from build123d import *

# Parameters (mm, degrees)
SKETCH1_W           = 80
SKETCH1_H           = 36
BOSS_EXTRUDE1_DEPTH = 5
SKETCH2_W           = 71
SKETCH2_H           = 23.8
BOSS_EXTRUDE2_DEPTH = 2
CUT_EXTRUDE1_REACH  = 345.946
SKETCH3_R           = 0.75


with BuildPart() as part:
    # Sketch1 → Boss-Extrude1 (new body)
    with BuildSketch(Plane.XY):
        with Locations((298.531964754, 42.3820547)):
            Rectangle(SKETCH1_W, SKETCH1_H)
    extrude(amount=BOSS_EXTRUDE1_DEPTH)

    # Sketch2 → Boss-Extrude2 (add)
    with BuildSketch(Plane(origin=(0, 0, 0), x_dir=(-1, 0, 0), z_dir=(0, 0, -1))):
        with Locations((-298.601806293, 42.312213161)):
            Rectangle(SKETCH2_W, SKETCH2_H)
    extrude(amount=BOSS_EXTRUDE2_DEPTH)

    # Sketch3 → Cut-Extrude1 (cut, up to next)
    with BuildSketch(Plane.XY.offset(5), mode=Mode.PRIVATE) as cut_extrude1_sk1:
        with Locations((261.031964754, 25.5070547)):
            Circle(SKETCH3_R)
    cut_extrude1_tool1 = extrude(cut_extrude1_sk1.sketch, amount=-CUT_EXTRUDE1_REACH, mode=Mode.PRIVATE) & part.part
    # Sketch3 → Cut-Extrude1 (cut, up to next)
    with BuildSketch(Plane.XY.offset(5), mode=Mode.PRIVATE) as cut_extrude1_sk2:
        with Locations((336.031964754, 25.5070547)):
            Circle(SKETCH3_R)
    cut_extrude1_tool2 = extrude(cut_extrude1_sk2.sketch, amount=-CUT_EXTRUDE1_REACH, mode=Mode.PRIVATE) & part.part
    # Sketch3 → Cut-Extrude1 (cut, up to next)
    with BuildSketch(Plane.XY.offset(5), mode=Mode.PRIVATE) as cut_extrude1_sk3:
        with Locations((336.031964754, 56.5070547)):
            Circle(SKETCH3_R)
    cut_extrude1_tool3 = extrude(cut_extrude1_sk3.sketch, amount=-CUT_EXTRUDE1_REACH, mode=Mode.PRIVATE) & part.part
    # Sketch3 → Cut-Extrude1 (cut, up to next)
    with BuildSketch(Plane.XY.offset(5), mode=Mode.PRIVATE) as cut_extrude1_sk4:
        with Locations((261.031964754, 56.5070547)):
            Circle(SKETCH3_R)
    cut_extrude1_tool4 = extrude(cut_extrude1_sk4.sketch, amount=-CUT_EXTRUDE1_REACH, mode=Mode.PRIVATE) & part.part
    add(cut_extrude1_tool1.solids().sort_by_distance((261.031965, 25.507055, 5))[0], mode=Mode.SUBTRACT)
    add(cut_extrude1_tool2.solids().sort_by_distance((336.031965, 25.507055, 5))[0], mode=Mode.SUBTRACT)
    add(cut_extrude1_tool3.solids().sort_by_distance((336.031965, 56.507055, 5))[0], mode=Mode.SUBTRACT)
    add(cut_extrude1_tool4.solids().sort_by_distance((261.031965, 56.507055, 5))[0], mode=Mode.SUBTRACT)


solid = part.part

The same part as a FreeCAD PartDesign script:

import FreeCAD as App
import Part
import Sketcher
from FreeCAD import Vector
Q = App.Units.Quantity

doc = App.newDocument("Part")
body = doc.addObject("PartDesign::Body", "Body")

# Sketch on XY plane
sketch1 = doc.addObject("Sketcher::SketchObject", "Sketch")
body.addObject(sketch1)
sketch1.AttachmentSupport = (doc.XY_Plane, [""])
sketch1.MapMode = "FlatFace"
sketch1.addGeometry([
    Part.LineSegment(Vector(258.531965, 60.382055, 0), Vector(258.531965, 24.382055, 0)),
    Part.LineSegment(Vector(258.531965, 24.382055, 0), Vector(338.531965, 24.382055, 0)),
    Part.LineSegment(Vector(338.531965, 24.382055, 0), Vector(338.531965, 60.382055, 0)),
    Part.LineSegment(Vector(338.531965, 60.382055, 0), Vector(258.531965, 60.382055, 0)),
], False)
sketch1.addConstraint([
    Sketcher.Constraint("Coincident", 0, 2, 1, 1),
    Sketcher.Constraint("Coincident", 1, 2, 2, 1),
    Sketcher.Constraint("Coincident", 2, 2, 3, 1),
    Sketcher.Constraint("Coincident", 3, 2, 0, 1),
    Sketcher.Constraint("Vertical", 0),
    Sketcher.Constraint("Horizontal", 1),
    Sketcher.Constraint("Vertical", 2),
    Sketcher.Constraint("Horizontal", 3),
    Sketcher.Constraint("DistanceX", 1, 1, 1, 2, Q("80 mm")),
    Sketcher.Constraint("DistanceY", 0, 2, 0, 1, Q("36 mm")),
    Sketcher.Constraint("DistanceX", -1, 1, 0, 2, Q("258.531965 mm")),
    Sketcher.Constraint("DistanceY", -1, 1, 0, 2, Q("24.382055 mm")),
])
pad1 = doc.addObject("PartDesign::Pad", "Pad")
body.addObject(pad1)
pad1.Profile = sketch1
pad1.Length = 5

# Sketch on XY plane
sketch2 = doc.addObject("Sketcher::SketchObject", "Sketch001")
body.addObject(sketch2)
sketch2.AttachmentSupport = (doc.XY_Plane, [""])
sketch2.MapMode = "FlatFace"
sketch2.addGeometry([
    Part.LineSegment(Vector(334.101806, 54.212213, 0), Vector(334.101806, 30.412213, 0)),
    Part.LineSegment(Vector(334.101806, 30.412213, 0), Vector(263.101806, 30.412213, 0)),
    Part.LineSegment(Vector(263.101806, 30.412213, 0), Vector(263.101806, 54.212213, 0)),
    Part.LineSegment(Vector(263.101806, 54.212213, 0), Vector(334.101806, 54.212213, 0)),
], False)
sketch2.addConstraint([
    Sketcher.Constraint("Coincident", 0, 2, 1, 1),
    Sketcher.Constraint("Coincident", 1, 2, 2, 1),
    Sketcher.Constraint("Coincident", 2, 2, 3, 1),
    Sketcher.Constraint("Coincident", 3, 2, 0, 1),
    Sketcher.Constraint("Vertical", 0),
    Sketcher.Constraint("Horizontal", 1),
    Sketcher.Constraint("Vertical", 2),
    Sketcher.Constraint("Horizontal", 3),
    Sketcher.Constraint("DistanceX", 1, 2, 1, 1, Q("71 mm")),
    Sketcher.Constraint("DistanceY", 0, 2, 0, 1, Q("23.8 mm")),
    Sketcher.Constraint("DistanceX", -1, 1, 0, 2, Q("334.101806 mm")),
    Sketcher.Constraint("DistanceY", -1, 1, 0, 2, Q("30.412213 mm")),
])
pad2 = doc.addObject("PartDesign::Pad", "Pad001")
body.addObject(pad2)
pad2.Profile = sketch2
pad2.Length = 2
pad2.Reversed = True

# Sketch on XY plane
sketch3 = doc.addObject("Sketcher::SketchObject", "Sketch002")
body.addObject(sketch3)
sketch3.AttachmentSupport = (doc.XY_Plane, [""])
sketch3.MapMode = "FlatFace"
sketch3.AttachmentOffset = App.Placement(Vector(0, 0, 5), App.Rotation())
sketch3.addGeometry(Part.Circle(Vector(261.031965, 25.507055, 0), Vector(0, 0, 1), 0.75), False)
sketch3.addConstraint([
    Sketcher.Constraint("Diameter", 0, Q("1.5 mm")),
    Sketcher.Constraint("DistanceX", -1, 1, 0, 3, Q("261.031965 mm")),
    Sketcher.Constraint("DistanceY", -1, 1, 0, 3, Q("25.507055 mm")),
])
pocket1 = doc.addObject("PartDesign::Pocket", "Pocket")
body.addObject(pocket1)
pocket1.Profile = sketch3
pocket1.Type = "UpToFirst"

# Sketch on XY plane
sketch4 = doc.addObject("Sketcher::SketchObject", "Sketch003")
body.addObject(sketch4)
sketch4.AttachmentSupport = (doc.XY_Plane, [""])
sketch4.MapMode = "FlatFace"
sketch4.AttachmentOffset = App.Placement(Vector(0, 0, 5), App.Rotation())
sketch4.addGeometry(Part.Circle(Vector(336.031965, 25.507055, 0), Vector(0, 0, 1), 0.75), False)
sketch4.addConstraint([
    Sketcher.Constraint("Diameter", 0, Q("1.5 mm")),
    Sketcher.Constraint("DistanceX", -1, 1, 0, 3, Q("336.031965 mm")),
    Sketcher.Constraint("DistanceY", -1, 1, 0, 3, Q("25.507055 mm")),
])
pocket2 = doc.addObject("PartDesign::Pocket", "Pocket001")
body.addObject(pocket2)
pocket2.Profile = sketch4
pocket2.Type = "UpToFirst"

# Sketch on XY plane
sketch5 = doc.addObject("Sketcher::SketchObject", "Sketch004")
body.addObject(sketch5)
sketch5.AttachmentSupport = (doc.XY_Plane, [""])
sketch5.MapMode = "FlatFace"
sketch5.AttachmentOffset = App.Placement(Vector(0, 0, 5), App.Rotation())
sketch5.addGeometry(Part.Circle(Vector(336.031965, 56.507055, 0), Vector(0, 0, 1), 0.75), False)
sketch5.addConstraint([
    Sketcher.Constraint("Diameter", 0, Q("1.5 mm")),
    Sketcher.Constraint("DistanceX", -1, 1, 0, 3, Q("336.031965 mm")),
    Sketcher.Constraint("DistanceY", -1, 1, 0, 3, Q("56.507055 mm")),
])
pocket3 = doc.addObject("PartDesign::Pocket", "Pocket002")
body.addObject(pocket3)
pocket3.Profile = sketch5
pocket3.Type = "UpToFirst"

# Sketch on XY plane
sketch6 = doc.addObject("Sketcher::SketchObject", "Sketch005")
body.addObject(sketch6)
sketch6.AttachmentSupport = (doc.XY_Plane, [""])
sketch6.MapMode = "FlatFace"
sketch6.AttachmentOffset = App.Placement(Vector(0, 0, 5), App.Rotation())
sketch6.addGeometry(Part.Circle(Vector(261.031965, 56.507055, 0), Vector(0, 0, 1), 0.75), False)
sketch6.addConstraint([
    Sketcher.Constraint("Diameter", 0, Q("1.5 mm")),
    Sketcher.Constraint("DistanceX", -1, 1, 0, 3, Q("261.031965 mm")),
    Sketcher.Constraint("DistanceY", -1, 1, 0, 3, Q("56.507055 mm")),
])
pocket4 = doc.addObject("PartDesign::Pocket", "Pocket003")
body.addObject(pocket4)
pocket4.Profile = sketch6
pocket4.Type = "UpToFirst"

doc.recompute()
